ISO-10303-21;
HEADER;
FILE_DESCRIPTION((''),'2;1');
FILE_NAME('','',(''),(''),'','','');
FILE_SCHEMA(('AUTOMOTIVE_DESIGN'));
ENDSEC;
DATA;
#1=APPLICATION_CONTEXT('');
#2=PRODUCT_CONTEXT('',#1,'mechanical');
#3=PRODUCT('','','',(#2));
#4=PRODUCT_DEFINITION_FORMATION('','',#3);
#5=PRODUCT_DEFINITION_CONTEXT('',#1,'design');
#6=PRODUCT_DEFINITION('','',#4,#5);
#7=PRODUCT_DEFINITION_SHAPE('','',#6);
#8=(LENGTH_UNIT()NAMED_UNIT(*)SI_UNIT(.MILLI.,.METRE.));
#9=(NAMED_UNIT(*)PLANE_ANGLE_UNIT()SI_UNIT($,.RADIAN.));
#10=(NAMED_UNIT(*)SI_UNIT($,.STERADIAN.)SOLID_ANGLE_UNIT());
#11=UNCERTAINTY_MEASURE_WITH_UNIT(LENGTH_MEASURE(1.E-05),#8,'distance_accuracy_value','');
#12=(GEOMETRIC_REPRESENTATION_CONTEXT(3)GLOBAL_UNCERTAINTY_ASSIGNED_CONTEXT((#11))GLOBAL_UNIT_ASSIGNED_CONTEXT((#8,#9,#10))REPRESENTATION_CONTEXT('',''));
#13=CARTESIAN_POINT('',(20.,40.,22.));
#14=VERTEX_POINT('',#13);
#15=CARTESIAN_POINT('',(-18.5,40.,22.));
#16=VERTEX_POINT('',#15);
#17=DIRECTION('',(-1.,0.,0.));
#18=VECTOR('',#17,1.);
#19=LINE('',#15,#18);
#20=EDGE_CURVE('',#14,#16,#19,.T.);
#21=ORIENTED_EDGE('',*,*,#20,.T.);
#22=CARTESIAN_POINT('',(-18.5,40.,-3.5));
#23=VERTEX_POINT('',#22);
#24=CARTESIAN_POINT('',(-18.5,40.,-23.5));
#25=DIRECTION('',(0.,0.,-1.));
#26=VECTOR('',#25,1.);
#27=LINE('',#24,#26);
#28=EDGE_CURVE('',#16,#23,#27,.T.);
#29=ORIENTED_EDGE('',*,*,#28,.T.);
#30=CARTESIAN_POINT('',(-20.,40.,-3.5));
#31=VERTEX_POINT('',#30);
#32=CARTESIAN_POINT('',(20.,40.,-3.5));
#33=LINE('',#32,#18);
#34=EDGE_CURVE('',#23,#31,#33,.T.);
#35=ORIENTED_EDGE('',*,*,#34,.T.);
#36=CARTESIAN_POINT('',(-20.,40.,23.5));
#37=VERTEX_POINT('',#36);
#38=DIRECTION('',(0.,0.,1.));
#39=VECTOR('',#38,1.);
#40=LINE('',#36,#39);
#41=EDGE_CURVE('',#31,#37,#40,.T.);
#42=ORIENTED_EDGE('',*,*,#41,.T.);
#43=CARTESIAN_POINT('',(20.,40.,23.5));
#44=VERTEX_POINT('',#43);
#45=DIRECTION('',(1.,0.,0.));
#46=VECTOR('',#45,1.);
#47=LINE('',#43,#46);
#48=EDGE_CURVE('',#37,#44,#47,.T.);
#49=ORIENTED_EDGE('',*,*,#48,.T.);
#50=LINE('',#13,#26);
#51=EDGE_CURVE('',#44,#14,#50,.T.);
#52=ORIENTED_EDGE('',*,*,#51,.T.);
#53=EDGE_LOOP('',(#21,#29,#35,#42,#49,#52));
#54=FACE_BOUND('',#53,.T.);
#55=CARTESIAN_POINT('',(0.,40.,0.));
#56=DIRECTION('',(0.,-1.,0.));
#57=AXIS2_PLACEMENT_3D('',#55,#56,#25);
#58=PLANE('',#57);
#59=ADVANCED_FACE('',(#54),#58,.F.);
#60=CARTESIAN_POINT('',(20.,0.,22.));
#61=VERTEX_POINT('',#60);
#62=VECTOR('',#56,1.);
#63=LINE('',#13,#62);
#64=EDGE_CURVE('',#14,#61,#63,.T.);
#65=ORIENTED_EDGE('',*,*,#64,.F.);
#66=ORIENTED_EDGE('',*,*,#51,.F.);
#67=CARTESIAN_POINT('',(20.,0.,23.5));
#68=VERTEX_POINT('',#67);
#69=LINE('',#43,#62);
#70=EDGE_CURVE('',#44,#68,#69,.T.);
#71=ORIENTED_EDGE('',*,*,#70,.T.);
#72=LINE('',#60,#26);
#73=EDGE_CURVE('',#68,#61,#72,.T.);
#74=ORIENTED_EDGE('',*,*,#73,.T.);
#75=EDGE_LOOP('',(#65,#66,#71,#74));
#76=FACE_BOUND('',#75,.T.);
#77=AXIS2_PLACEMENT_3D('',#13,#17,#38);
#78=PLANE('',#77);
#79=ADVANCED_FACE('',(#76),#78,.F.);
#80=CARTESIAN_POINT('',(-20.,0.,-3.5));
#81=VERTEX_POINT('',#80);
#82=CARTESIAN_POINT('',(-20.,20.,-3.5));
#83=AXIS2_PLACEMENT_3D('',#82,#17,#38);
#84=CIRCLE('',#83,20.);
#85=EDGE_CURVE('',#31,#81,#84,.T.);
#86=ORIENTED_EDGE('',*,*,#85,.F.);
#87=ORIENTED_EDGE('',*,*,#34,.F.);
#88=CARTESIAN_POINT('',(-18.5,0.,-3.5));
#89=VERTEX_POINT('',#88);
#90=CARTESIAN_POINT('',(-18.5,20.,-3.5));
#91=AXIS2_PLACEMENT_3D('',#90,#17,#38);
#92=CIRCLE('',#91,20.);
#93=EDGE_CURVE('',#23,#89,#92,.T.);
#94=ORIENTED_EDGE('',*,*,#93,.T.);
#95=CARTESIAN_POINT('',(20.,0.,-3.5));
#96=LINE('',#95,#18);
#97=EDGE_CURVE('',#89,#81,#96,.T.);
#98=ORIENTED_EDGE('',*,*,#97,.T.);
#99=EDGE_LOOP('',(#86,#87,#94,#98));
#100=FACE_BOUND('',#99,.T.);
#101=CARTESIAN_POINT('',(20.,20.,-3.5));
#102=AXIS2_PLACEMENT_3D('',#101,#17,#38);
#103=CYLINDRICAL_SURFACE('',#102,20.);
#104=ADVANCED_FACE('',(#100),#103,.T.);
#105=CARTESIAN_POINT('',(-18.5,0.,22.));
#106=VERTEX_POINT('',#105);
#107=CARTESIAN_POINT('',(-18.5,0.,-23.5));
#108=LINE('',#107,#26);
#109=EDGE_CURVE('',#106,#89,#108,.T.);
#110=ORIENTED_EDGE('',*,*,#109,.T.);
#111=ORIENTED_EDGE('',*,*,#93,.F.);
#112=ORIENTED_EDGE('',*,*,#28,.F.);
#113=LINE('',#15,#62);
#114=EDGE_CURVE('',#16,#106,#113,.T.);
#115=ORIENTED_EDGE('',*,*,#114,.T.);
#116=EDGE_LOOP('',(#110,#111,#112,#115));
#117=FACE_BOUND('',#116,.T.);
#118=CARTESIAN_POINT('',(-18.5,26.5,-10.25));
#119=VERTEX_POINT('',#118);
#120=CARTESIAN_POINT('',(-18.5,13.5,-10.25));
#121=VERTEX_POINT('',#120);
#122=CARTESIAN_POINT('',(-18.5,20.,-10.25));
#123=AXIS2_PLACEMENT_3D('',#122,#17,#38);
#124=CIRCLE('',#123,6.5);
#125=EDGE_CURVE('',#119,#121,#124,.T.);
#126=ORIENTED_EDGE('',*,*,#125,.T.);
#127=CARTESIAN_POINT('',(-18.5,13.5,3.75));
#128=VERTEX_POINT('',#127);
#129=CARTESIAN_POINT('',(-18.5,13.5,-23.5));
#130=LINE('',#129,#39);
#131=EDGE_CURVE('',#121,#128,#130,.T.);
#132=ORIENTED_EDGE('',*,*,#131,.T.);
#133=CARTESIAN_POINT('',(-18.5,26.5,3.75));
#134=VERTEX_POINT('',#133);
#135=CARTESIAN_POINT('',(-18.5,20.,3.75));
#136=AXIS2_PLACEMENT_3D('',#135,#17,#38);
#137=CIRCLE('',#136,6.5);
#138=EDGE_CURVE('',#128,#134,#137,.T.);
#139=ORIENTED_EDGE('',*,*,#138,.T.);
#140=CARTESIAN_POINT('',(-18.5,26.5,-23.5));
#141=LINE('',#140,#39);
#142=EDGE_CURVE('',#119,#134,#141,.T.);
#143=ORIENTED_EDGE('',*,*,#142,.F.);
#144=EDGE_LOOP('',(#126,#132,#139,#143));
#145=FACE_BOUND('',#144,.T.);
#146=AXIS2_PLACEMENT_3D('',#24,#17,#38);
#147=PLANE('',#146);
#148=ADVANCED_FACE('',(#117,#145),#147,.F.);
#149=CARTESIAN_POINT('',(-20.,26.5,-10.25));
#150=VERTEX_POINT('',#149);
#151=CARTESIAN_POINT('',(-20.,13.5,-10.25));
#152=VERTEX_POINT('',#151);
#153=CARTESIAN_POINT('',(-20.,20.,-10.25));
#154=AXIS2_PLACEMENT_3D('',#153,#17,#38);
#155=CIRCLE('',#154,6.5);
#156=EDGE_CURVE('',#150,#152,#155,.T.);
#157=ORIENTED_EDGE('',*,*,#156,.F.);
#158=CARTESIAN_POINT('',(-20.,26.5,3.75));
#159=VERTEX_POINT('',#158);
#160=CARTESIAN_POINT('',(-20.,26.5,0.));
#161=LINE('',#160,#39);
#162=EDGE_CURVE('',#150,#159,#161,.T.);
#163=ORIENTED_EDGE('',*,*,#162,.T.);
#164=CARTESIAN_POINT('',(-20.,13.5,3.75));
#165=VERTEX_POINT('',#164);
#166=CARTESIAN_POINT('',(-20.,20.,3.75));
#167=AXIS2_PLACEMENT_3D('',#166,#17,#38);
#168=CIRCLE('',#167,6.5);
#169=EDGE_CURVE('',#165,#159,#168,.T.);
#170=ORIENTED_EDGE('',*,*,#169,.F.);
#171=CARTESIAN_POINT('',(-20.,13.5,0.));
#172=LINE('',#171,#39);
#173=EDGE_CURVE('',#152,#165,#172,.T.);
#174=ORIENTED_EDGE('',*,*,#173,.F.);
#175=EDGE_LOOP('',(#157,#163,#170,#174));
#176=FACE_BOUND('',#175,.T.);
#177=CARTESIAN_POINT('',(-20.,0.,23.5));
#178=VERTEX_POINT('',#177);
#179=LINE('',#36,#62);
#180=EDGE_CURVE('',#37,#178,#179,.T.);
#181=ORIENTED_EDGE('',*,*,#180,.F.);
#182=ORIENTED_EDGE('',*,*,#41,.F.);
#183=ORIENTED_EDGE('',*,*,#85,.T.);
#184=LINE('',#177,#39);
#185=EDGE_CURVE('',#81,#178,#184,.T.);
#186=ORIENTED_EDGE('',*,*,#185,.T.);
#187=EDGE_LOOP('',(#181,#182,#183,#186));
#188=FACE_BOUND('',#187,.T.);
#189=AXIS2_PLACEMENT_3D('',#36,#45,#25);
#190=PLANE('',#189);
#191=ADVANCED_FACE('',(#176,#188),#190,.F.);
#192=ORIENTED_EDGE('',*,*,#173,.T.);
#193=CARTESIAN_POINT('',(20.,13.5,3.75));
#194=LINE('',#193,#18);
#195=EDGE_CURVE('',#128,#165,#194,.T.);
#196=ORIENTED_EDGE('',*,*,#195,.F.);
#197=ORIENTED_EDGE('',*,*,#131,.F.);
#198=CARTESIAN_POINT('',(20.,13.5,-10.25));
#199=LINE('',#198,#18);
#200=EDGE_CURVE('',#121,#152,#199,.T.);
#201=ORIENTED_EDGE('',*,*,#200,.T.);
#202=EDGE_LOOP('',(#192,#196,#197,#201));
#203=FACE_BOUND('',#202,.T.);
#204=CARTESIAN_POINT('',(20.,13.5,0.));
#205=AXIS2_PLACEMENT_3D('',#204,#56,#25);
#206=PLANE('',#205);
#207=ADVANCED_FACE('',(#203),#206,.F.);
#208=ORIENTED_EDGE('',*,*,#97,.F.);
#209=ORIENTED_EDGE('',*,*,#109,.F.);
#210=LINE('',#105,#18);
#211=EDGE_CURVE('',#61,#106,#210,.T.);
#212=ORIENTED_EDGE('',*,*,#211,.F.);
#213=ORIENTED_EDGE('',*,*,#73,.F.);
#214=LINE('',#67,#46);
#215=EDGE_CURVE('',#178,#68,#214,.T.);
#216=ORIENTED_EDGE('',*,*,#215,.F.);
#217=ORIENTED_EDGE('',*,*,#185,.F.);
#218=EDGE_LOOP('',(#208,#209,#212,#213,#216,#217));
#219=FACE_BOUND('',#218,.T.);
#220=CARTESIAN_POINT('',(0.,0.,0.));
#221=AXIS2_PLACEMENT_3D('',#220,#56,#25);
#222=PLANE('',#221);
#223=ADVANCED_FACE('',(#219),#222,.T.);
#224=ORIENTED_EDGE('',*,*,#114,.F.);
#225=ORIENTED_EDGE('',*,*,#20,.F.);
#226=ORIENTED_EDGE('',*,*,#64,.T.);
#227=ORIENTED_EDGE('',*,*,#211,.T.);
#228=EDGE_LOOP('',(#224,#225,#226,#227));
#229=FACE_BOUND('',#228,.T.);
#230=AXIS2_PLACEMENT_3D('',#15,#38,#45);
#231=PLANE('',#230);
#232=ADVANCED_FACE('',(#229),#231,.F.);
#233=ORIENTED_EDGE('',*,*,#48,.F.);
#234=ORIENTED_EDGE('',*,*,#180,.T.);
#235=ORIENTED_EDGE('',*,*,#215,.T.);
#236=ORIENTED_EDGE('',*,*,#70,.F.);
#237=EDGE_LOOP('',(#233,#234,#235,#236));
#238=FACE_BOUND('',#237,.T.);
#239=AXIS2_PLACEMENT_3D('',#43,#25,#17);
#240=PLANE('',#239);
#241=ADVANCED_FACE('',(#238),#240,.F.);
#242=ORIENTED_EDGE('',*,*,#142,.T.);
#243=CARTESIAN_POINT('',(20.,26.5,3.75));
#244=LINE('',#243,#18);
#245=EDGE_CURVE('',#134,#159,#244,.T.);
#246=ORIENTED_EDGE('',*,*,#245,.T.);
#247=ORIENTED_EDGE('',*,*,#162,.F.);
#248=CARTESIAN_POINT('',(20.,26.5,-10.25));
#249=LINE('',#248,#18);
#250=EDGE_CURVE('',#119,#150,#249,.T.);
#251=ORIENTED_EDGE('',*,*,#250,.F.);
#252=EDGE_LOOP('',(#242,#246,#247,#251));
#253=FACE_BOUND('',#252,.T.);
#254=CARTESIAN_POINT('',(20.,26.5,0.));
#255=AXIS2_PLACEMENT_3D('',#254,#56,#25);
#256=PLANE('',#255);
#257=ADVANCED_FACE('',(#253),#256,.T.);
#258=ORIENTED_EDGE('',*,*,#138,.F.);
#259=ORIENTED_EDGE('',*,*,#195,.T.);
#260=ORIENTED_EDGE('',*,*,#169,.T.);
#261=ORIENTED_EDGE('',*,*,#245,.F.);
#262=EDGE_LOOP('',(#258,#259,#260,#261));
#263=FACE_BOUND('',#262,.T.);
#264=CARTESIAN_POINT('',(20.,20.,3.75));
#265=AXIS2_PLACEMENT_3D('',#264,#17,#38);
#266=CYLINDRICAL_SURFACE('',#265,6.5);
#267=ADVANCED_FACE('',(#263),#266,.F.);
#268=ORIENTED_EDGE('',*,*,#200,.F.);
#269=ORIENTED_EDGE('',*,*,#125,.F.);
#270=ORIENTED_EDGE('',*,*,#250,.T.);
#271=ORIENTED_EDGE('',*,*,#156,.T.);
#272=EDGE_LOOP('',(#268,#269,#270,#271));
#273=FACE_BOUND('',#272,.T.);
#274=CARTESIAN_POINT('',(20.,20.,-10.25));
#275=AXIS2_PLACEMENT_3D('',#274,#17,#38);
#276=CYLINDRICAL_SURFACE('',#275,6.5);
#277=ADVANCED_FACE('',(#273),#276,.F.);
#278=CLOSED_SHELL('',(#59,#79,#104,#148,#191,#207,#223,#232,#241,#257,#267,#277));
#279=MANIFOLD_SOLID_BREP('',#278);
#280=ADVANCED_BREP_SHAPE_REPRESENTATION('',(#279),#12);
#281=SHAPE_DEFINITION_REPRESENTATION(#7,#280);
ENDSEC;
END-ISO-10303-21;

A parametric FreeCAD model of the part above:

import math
import FreeCAD as App
import Part
import Sketcher
from FreeCAD import Vector


def add_polygon(sketch, points):
    """Adds a closed chain of lines whose ends are joined by coincident constraints."""
    first, n = sketch.GeometryCount, len(points)
    for a, b in zip(points, points[1:] + points[:1]):
        sketch.addGeometry(Part.LineSegment(App.Vector(*a, 0), App.Vector(*b, 0)), False)
    for i in range(n):
        sketch.addConstraint(Sketcher.Constraint("Coincident", first + i, 2, first + (i + 1) % n, 1))

doc = App.newDocument("Part")
body = doc.addObject("PartDesign::Body", "Body")

# Sketch on XZ plane
sketch1 = body.newObject("Sketcher::SketchObject", "Sketch")
sketch1.AttachmentSupport = (doc.getObject("XZ_Plane"), [""])
sketch1.MapMode = "FlatFace"
add_polygon(sketch1, [(-18.5, 22), (-18.5, -23.5), (-20, -23.5), (-20, 23.5), (20, 23.5), (20, 22)])  # lines 0-5
sketch1.addConstraint([
    Sketcher.Constraint("Vertical", 0),
    Sketcher.Constraint("Horizontal", 1),
    Sketcher.Constraint("Vertical", 2),
    Sketcher.Constraint("Horizontal", 3),
    Sketcher.Constraint("Vertical", 4),
    Sketcher.Constraint("Horizontal", 5),
    Sketcher.Constraint("Symmetric", 1, 2, 3, 2, -1, 1),
    Sketcher.Constraint("Equal", 1, 4),
    Sketcher.Constraint("DistanceX", 3, 1, 3, 2, 40.0),
    Sketcher.Constraint("DistanceY", 2, 1, 2, 2, 47.0),
    Sketcher.Constraint("DistanceX", 1, 2, 1, 1, 1.5),
])
pad1 = body.newObject("PartDesign::Pad", "Pad")
pad1.Profile = sketch1
pad1.Length = 40
pad1.Reversed = True

# Sketch on YZ plane
sketch2 = body.newObject("Sketcher::SketchObject", "Sketch001")
sketch2.AttachmentSupport = (doc.getObject("YZ_Plane"), [""])
sketch2.MapMode = "FlatFace"
sketch2.AttachmentOffset = App.Placement(Vector(0, 0, -20), App.Rotation())
sketch2.addGeometry([
    Part.LineSegment(Vector(0, -24, 0), Vector(0, -4, 0)),  # 0
    Part.ArcOfCircle(Part.Circle(Vector(20, -4, 0), Vector(0, 0, 1), 20), math.radians(180), math.radians(270)),  # 1
    Part.LineSegment(Vector(20, -24, 0), Vector(0, -24, 0)),  # 2
    Part.LineSegment(Vector(40, -24, 0), Vector(20, -24, 0)),  # 3
    Part.ArcOfCircle(Part.Circle(Vector(20, -4, 0), Vector(0, 0, 1), 20), math.radians(-90), math.radians(0)),  # 4
    Part.LineSegment(Vector(40, -4, 0), Vector(40, -24, 0)),  # 5
    Part.LineSegment(Vector(14, -10, 0), Vector(14, 4, 0)),  # 6
    Part.ArcOfCircle(Part.Circle(Vector(20, 4, 0), Vector(0, 0, 1), 6), math.radians(0), math.radians(180)),  # 7
    Part.LineSegment(Vector(26, 4, 0), Vector(26, -10, 0)),  # 8
    Part.ArcOfCircle(Part.Circle(Vector(20, -10, 0), Vector(0, 0, 1), 6), math.radians(180), math.radians(360)),  # 9
], False)
sketch2.addConstraint([
    Sketcher.Constraint("Tangent", 0, 2, 1, 1),
    Sketcher.Constraint("Tangent", 1, 2, 2, 1),
    Sketcher.Constraint("Coincident", 2, 2, 0, 1),
    Sketcher.Constraint("Tangent", 3, 2, 4, 1),
    Sketcher.Constraint("Tangent", 4, 2, 5, 1),
    Sketcher.Constraint("Coincident", 5, 2, 3, 1),
    Sketcher.Constraint("Tangent", 6, 2, 7, 2),
    Sketcher.Constraint("Tangent", 7, 1, 8, 1),
    Sketcher.Constraint("Tangent", 8, 2, 9, 2),
    Sketcher.Constraint("Tangent", 9, 1, 6, 1),
    Sketcher.Constraint("Vertical", 0),
    Sketcher.Constraint("Horizontal", 2),
    Sketcher.Constraint("Horizontal", 3),
    Sketcher.Constraint("Vertical", 5),
    Sketcher.Constraint("Vertical", 6),
    Sketcher.Constraint("Vertical", 8),
    Sketcher.Constraint("Coincident", 4, 3, 1, 3),
    Sketcher.Constraint("Equal", 1, 4),
    Sketcher.Constraint("PointOnObject", 0, 2, -2),
    Sketcher.Constraint("Vertical", 4, 3, 7, 3),
    Sketcher.Constraint("Radius", 1, 20.0),
    Sketcher.Constraint("Radius", 7, 6.5),
    Sketcher.Constraint("DistanceY", 6, 1, 6, 2, 14.0),
    Sketcher.Constraint("DistanceY", 1, 3, -1, 1, 3.5),
    Sketcher.Constraint("DistanceY", -1, 1, 7, 3, 3.75),
])
pocket1 = body.newObject("PartDesign::Pocket", "Pocket")
pocket1.Profile = sketch2
pocket1.Length = 40
pocket1.Reversed = True

doc.recompute()
